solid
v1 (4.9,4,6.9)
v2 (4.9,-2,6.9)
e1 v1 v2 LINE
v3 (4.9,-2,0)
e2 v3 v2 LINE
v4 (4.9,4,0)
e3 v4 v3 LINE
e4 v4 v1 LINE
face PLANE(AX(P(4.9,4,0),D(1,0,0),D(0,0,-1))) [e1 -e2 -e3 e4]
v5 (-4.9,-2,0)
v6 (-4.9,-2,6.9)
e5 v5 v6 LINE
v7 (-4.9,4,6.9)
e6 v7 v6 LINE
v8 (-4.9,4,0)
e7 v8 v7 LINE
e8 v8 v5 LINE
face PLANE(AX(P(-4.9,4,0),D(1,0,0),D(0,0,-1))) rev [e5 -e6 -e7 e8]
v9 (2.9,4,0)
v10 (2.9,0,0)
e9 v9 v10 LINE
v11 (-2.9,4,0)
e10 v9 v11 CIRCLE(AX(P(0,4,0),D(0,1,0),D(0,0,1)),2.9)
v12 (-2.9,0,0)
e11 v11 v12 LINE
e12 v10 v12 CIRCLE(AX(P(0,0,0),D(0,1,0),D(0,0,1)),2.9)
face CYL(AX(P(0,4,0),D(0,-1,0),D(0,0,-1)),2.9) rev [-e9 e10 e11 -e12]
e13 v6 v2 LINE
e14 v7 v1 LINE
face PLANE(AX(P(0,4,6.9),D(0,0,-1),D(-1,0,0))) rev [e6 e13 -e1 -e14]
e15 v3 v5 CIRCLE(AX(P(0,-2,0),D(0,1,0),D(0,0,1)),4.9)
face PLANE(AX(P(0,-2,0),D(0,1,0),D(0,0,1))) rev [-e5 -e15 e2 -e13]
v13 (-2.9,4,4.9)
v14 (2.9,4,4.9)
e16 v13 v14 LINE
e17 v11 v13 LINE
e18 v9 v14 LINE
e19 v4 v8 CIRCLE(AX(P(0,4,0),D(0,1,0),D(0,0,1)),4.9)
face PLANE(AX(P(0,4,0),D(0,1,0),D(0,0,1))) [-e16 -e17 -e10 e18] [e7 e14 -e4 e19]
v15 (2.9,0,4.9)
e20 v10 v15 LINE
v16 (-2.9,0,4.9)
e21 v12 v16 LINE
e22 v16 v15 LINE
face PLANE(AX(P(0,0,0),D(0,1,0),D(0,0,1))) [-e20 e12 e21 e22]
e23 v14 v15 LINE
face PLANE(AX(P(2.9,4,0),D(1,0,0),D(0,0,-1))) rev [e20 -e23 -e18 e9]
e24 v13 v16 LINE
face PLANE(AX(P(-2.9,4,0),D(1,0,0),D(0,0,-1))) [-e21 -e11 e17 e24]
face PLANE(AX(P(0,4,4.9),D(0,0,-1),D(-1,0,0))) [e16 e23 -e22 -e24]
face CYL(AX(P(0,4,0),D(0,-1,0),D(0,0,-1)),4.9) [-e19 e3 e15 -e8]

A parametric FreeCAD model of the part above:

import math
import FreeCAD as App
import Part
import Sketcher

doc = App.newDocument("Part")
body = doc.addObject("PartDesign::Body", "Body")

sketch1 = body.newObject("Sketcher::SketchObject", "Sketch")
sketch1.AttachmentSupport = (doc.getObject("XZ_Plane"), [""])
sketch1.MapMode = "FlatFace"
sketch1.addGeometry([
    Part.LineSegment(App.Vector(4.9, 6.9, 0), App.Vector(4.9, 0, 0)),
    Part.ArcOfCircle(Part.Circle(App.Vector(0, 0, 0), App.Vector(0, 0, 1), 4.9), math.radians(180), math.radians(360)),
    Part.LineSegment(App.Vector(-4.9, 0, 0), App.Vector(-4.9, 6.9, 0)),
    Part.LineSegment(App.Vector(-4.9, 6.9, 0), App.Vector(4.9, 6.9, 0)),
    Part.ArcOfCircle(Part.Circle(App.Vector(0, 0, 0), App.Vector(0, 0, 1), 2.9), math.radians(180), math.radians(360)),
    Part.LineSegment(App.Vector(2.9, 0, 0), App.Vector(2.9, 4.9, 0)),
    Part.LineSegment(App.Vector(2.9, 4.9, 0), App.Vector(-2.9, 4.9, 0)),
    Part.LineSegment(App.Vector(-2.9, 4.9, 0), App.Vector(-2.9, 0, 0)),
], False)
sketch1.addConstraint([
    Sketcher.Constraint("Tangent", 0, 2, 1, 2),
    Sketcher.Constraint("Tangent", 1, 1, 2, 1),
    Sketcher.Constraint("Coincident", 2, 2, 3, 1),
    Sketcher.Constraint("Coincident", 3, 2, 0, 1),
    Sketcher.Constraint("Tangent", 4, 2, 5, 1),
    Sketcher.Constraint("Coincident", 5, 2, 6, 1),
    Sketcher.Constraint("Coincident", 6, 2, 7, 1),
    Sketcher.Constraint("Tangent", 7, 2, 4, 1),
    Sketcher.Constraint("Vertical", 0),
    Sketcher.Constraint("Vertical", 2),
    Sketcher.Constraint("Horizontal", 3),
    Sketcher.Constraint("Vertical", 5),
    Sketcher.Constraint("Horizontal", 6),
    Sketcher.Constraint("Vertical", 7),
    Sketcher.Constraint("Coincident", 1, 3, -1, 1),
    Sketcher.Constraint("Coincident", 4, 3, -1, 1),
    Sketcher.Constraint("Radius", 1, 4.9),
    Sketcher.Constraint("Radius", 4, 2.9),
    Sketcher.Constraint("DistanceY", 0, 2, 0, 1, 6.9),
    Sketcher.Constraint("DistanceY", 5, 1, 5, 2, 4.9),
])
pad1 = body.newObject("PartDesign::Pad", "Pad")
pad1.Profile = sketch1
pad1.Length = 4
pad1.Reversed = True

sketch2 = body.newObject("Sketcher::SketchObject", "Sketch001")
sketch2.AttachmentSupport = (doc.getObject("XZ_Plane"), [""])
sketch2.MapMode = "FlatFace"
sketch2.AttachmentOffset = App.Placement(App.Vector(0, 0, 2), App.Rotation())
sketch2.addGeometry([
    Part.LineSegment(App.Vector(-4.9, 0, 0), App.Vector(-4.9, 6.9, 0)),
    Part.LineSegment(App.Vector(-4.9, 6.9, 0), App.Vector(4.9, 6.9, 0)),
    Part.LineSegment(App.Vector(4.9, 6.9, 0), App.Vector(4.9, 0, 0)),
    Part.ArcOfCircle(Part.Circle(App.Vector(0, 0, 0), App.Vector(0, 0, 1), 4.9), math.radians(180), math.radians(360)),
], False)
sketch2.addConstraint([
    Sketcher.Constraint("Coincident", 0, 2, 1, 1),
    Sketcher.Constraint("Coincident", 1, 2, 2, 1),
    Sketcher.Constraint("Tangent", 2, 2, 3, 2),
    Sketcher.Constraint("Tangent", 3, 1, 0, 1),
    Sketcher.Constraint("Vertical", 0),
    Sketcher.Constraint("Horizontal", 1),
    Sketcher.Constraint("Vertical", 2),
    Sketcher.Constraint("Coincident", 3, 3, -1, 1),
    Sketcher.Constraint("Radius", 3, 4.9),
    Sketcher.Constraint("DistanceY", 0, 1, 0, 2, 6.9),
])
pad2 = body.newObject("PartDesign::Pad", "Pad001")
pad2.Profile = sketch2
pad2.Length = 2
pad2.Reversed = True

doc.recompute()
